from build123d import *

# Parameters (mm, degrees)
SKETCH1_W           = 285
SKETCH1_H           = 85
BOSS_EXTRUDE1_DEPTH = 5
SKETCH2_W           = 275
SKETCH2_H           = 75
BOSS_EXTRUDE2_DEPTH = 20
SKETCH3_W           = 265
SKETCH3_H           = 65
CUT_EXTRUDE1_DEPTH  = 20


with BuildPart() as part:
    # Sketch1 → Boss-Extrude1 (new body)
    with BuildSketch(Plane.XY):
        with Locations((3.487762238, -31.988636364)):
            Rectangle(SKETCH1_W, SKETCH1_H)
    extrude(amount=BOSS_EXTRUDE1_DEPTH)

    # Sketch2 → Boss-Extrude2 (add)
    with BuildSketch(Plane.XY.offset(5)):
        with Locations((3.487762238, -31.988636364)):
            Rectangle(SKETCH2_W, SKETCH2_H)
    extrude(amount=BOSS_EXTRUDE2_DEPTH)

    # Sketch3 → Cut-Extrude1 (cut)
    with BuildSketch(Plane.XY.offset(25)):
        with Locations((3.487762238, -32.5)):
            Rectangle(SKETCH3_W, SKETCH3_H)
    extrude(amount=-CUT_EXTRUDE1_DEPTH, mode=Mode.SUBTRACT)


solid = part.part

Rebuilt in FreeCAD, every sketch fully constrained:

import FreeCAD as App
import Part
import Sketcher
Q = App.Units.Quantity


def add_polygon(sketch, points):
    """Adds a closed chain of lines whose ends are joined by coincident constraints."""
    first, n = sketch.GeometryCount, len(points)
    for a, b in zip(points, points[1:] + points[:1]):
        sketch.addGeometry(Part.LineSegment(App.Vector(*a, 0), App.Vector(*b, 0)), False)
    for i in range(n):
        sketch.addConstraint(Sketcher.Constraint("Coincident", first + i, 2, first + (i + 1) % n, 1))

doc = App.newDocument("Part")
body = doc.addObject("PartDesign::Body", "Body")

# Sketch on XY plane
sketch1 = body.newObject("Sketcher::SketchObject", "Sketch")
sketch1.AttachmentSupport = (doc.getObject("XY_Plane"), [""])
sketch1.MapMode = "FlatFace"
add_polygon(sketch1, [(-139, 11), (-139, -74), (146, -74), (146, 11)])  # lines 0-3
sketch1.addConstraint([
    Sketcher.Constraint("Vertical", 0),
    Sketcher.Constraint("Horizontal", 1),
    Sketcher.Constraint("Vertical", 2),
    Sketcher.Constraint("Horizontal", 3),
    Sketcher.Constraint("DistanceX", 1, 1, 1, 2, Q("285 mm")),
    Sketcher.Constraint("DistanceY", 0, 2, 0, 1, Q("85 mm")),
    Sketcher.Constraint("DistanceX", 0, 2, -1, 1, Q("139.012238 mm")),
    Sketcher.Constraint("DistanceY", 0, 2, -1, 1, Q("74.488636 mm")),
])
pad1 = body.newObject("PartDesign::Pad", "Pad")
pad1.Profile = sketch1
pad1.Length = 5

# Sketch on XY plane
sketch2 = body.newObject("Sketcher::SketchObject", "Sketch001")
sketch2.AttachmentSupport = (doc.getObject("XY_Plane"), [""])
sketch2.MapMode = "FlatFace"
sketch2.AttachmentOffset = App.Placement(App.Vector(0, 0, 5), App.Rotation())
add_polygon(sketch2, [(-134, 6), (-134, -69), (141, -69), (141, 6)])  # lines 0-3
sketch2.addConstraint([
    Sketcher.Constraint("Vertical", 0),
    Sketcher.Constraint("Horizontal", 1),
    Sketcher.Constraint("Vertical", 2),
    Sketcher.Constraint("Horizontal", 3),
    Sketcher.Constraint("DistanceX", 1, 1, 1, 2, Q("275 mm")),
    Sketcher.Constraint("DistanceY", 0, 2, 0, 1, Q("75 mm")),
    Sketcher.Constraint("DistanceX", 0, 2, -1, 1, Q("134.012238 mm")),
    Sketcher.Constraint("DistanceY", 0, 2, -1, 1, Q("69.488636 mm")),
])
pad2 = body.newObject("PartDesign::Pad", "Pad001")
pad2.Profile = sketch2
pad2.Length = 20

# Sketch on XY plane
sketch3 = body.newObject("Sketcher::SketchObject", "Sketch002")
sketch3.AttachmentSupport = (doc.getObject("XY_Plane"), [""])
sketch3.MapMode = "FlatFace"
sketch3.AttachmentOffset = App.Placement(App.Vector(0, 0, 25), App.Rotation())
add_polygon(sketch3, [(-129, 0), (-129, -65), (136, -65), (136, 0)])  # lines 0-3
sketch3.addConstraint([
    Sketcher.Constraint("Vertical", 0),
    Sketcher.Constraint("Horizontal", 1),
    Sketcher.Constraint("Vertical", 2),
    Sketcher.Constraint("Horizontal", 3),
    Sketcher.Constraint("PointOnObject", 2, 2, -1),
    Sketcher.Constraint("DistanceX", 1, 1, 1, 2, Q("265 mm")),
    Sketcher.Constraint("DistanceY", 0, 2, 0, 1, Q("65 mm")),
    Sketcher.Constraint("DistanceX", 0, 2, -1, 1, Q("129.012238 mm")),
])
pocket1 = body.newObject("PartDesign::Pocket", "Pocket")
pocket1.Profile = sketch3
pocket1.Length = 20

doc.recompute()
